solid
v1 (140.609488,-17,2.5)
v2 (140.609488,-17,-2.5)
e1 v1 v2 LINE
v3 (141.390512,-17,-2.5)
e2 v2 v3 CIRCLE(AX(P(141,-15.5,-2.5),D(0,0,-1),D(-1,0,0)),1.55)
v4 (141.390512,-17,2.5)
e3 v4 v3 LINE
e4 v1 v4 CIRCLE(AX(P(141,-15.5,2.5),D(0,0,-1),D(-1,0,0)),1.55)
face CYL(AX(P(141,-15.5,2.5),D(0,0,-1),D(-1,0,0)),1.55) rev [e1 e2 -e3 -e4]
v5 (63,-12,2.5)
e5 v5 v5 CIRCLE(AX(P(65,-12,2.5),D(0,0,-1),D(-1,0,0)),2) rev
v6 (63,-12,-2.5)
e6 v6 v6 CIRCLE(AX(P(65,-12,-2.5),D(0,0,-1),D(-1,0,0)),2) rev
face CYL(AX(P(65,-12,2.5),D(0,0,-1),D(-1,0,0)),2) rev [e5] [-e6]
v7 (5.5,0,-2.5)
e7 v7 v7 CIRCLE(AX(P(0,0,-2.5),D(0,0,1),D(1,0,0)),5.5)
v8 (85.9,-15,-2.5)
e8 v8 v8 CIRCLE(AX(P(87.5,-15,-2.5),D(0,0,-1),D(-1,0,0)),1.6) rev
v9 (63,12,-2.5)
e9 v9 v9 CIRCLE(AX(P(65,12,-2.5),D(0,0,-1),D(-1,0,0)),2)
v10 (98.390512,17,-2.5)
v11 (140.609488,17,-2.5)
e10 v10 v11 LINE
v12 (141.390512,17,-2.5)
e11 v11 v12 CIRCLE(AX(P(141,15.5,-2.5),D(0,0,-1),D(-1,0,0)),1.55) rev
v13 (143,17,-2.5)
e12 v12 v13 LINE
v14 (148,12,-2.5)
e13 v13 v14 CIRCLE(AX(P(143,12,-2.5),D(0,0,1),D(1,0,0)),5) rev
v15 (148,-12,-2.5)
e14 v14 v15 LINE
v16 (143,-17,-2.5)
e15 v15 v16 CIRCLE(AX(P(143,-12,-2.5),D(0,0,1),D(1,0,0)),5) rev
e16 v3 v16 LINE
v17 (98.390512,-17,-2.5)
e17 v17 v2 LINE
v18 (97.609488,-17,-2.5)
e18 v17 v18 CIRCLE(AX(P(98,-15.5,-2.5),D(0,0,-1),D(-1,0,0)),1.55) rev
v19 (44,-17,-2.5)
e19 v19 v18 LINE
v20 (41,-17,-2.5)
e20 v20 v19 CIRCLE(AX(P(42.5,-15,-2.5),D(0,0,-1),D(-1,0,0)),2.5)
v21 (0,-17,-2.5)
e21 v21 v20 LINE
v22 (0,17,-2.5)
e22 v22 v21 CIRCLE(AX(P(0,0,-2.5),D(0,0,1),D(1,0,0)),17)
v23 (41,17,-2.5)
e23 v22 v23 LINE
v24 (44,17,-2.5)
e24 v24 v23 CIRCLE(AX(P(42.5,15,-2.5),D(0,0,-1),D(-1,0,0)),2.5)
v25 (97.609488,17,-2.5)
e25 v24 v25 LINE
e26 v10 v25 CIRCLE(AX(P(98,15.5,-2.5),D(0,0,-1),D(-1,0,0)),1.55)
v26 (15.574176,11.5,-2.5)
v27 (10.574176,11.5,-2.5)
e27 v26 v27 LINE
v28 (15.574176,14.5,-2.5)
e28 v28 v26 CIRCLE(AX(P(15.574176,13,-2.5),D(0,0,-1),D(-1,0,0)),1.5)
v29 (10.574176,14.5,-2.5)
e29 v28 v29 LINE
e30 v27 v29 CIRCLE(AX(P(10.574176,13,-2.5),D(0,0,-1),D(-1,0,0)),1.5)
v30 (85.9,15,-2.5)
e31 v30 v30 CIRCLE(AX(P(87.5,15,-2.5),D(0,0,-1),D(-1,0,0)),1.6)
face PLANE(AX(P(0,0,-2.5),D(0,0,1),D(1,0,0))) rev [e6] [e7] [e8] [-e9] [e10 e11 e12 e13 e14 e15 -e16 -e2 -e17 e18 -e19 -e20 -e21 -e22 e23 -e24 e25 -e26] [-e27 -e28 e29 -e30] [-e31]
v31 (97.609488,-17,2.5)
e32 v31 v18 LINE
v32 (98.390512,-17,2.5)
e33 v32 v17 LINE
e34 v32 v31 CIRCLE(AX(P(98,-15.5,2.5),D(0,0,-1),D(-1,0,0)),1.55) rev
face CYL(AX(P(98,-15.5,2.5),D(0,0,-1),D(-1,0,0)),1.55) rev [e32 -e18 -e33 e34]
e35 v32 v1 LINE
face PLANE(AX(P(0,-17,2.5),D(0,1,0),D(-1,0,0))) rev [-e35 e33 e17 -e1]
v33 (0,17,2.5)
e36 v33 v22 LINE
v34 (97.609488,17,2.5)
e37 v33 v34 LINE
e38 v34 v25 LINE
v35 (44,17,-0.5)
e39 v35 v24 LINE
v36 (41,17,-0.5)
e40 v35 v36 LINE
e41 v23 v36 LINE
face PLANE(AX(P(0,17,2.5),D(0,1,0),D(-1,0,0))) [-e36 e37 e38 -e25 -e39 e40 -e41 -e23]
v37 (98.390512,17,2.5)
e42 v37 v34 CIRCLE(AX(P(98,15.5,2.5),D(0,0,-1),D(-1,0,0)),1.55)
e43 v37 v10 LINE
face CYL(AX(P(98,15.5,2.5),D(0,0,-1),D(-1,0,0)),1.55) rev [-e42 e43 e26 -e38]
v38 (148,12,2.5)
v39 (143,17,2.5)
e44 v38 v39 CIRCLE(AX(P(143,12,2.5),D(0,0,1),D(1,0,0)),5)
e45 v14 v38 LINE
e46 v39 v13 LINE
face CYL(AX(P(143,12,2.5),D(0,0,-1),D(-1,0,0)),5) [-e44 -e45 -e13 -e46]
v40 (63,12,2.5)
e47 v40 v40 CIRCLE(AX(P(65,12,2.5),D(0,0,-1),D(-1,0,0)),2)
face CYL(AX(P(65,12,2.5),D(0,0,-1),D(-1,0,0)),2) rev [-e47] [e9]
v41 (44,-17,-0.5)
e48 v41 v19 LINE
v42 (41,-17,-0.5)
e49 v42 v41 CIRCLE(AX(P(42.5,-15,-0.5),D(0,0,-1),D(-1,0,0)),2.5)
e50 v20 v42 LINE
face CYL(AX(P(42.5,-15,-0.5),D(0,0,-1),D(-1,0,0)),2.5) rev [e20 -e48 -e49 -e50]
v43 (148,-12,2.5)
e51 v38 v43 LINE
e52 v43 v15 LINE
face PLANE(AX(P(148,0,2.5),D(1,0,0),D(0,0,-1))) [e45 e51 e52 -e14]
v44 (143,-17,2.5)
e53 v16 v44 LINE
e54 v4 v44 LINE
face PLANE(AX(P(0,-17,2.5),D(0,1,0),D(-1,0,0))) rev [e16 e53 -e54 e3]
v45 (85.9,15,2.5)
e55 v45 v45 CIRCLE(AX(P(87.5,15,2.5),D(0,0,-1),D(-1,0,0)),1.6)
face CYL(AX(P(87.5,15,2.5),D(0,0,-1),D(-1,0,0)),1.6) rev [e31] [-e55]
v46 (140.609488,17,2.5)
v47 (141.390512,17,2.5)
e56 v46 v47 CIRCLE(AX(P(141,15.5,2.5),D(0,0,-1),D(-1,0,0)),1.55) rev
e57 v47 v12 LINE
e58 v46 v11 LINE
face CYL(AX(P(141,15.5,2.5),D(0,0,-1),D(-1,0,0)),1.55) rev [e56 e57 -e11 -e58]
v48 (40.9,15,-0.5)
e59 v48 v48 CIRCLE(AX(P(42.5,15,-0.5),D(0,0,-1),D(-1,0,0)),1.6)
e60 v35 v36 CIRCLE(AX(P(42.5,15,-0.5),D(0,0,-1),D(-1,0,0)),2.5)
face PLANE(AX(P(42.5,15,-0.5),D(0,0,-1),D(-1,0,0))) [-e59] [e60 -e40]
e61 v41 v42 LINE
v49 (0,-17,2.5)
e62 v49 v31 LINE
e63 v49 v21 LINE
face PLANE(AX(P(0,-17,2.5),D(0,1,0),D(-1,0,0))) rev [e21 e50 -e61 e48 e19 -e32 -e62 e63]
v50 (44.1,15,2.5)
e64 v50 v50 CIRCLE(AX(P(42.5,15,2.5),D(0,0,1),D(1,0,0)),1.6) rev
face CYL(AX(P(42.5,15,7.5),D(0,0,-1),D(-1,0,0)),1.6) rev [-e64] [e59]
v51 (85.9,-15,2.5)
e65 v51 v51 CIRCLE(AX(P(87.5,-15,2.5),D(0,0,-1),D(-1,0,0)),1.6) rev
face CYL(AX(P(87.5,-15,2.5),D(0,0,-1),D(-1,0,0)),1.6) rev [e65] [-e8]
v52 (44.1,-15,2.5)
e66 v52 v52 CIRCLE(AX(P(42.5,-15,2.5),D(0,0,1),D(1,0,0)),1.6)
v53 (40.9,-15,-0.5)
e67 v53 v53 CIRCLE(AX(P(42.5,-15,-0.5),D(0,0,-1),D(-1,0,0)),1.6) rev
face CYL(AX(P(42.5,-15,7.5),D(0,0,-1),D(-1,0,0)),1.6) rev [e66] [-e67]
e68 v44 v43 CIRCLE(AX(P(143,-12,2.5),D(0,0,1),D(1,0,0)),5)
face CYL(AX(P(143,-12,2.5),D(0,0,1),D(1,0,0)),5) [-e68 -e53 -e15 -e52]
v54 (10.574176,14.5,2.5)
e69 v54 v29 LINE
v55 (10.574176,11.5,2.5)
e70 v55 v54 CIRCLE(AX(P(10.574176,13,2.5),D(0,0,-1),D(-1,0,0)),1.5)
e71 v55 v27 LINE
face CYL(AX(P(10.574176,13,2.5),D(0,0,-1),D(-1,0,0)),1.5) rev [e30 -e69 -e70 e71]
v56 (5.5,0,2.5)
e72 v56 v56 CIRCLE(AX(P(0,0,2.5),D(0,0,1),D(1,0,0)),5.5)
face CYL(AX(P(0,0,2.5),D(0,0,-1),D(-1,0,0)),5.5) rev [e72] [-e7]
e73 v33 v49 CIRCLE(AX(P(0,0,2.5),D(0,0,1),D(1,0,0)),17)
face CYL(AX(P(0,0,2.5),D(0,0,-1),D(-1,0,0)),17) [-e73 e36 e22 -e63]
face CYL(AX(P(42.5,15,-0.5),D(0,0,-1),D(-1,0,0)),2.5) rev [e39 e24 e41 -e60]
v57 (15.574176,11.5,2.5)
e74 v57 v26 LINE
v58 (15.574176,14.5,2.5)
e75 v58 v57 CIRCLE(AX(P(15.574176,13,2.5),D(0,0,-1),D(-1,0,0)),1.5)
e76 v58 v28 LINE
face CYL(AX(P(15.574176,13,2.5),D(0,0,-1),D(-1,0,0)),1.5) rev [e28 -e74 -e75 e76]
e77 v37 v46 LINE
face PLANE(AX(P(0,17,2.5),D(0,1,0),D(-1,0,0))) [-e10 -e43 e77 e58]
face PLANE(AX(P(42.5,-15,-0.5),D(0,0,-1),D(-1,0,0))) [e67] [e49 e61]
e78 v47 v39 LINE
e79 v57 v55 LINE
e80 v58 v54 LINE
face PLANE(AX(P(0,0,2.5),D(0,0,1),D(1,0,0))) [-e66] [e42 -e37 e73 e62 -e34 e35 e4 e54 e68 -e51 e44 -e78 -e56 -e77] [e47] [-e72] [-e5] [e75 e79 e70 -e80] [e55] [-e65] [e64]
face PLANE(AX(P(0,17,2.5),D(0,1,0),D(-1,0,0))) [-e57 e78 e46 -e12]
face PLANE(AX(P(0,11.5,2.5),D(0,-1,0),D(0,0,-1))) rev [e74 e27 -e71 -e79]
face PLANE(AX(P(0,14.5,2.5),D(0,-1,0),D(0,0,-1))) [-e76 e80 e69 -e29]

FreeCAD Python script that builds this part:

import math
import FreeCAD as App
import Part
import Sketcher

V = App.Vector
Q = App.Units.Quantity


def edges_at(feature, points):
    """Names of the edges that pass closest to the given points."""
    edges = feature.Shape.Edges
    near = lambda p: min(range(len(edges)), key=lambda i: edges[i].distToShape(Part.Vertex(*p))[0])
    return sorted({f"Edge{near(p) + 1}" for p in points})

doc = App.newDocument("Part")
params = doc.addObject("Spreadsheet::Sheet", "Params")
for row, (alias, value) in enumerate([
    ("sketch1_radius", "17 mm"),
    ("sketch1_radius2", "5.5 mm"),
    ("sketch1_width", "148 mm"),
    ("pad1_length", "5 mm"),
    ("fillet_radius", "5 mm"),
    ("sketch2_diameter", "4 mm"),
    ("sketch2_diameter2", "3.2 mm"),
    ("sketch2_radius", "1.5 mm"),
    ("sketch2_width", "5 mm"),
    ("sketch2_radius2", "1.55 mm"),
    ("sketch3_diameter", "3.2 mm"),
    ("pocket2_length", "10 mm"),
    ("sketch4_diameter", "5 mm"),
    ("pocket3_length", "2 mm"),
], start=1):
    params.set(f"A{row}", alias)
    params.set(f"B{row}", "=" + value)
    params.setAlias(f"B{row}", alias)

body = doc.addObject("PartDesign::Body", "Body")

# Sketch on XY plane
sketch1 = body.newObject("Sketcher::SketchObject", "Sketch")
sketch1.AttachmentSupport = (doc.getObject("XY_Plane"), [""])
sketch1.MapMode = "FlatFace"
sketch1.addGeometry([
    Part.LineSegment(V(148, -17, 0), V(148, 17, 0)),  # 0
    Part.LineSegment(V(148, 17, 0), V(0, 17, 0)),  # 1
    Part.ArcOfCircle(Part.Circle(V(0, 0, 0), V(0, 0, 1), 17), math.radians(90), math.radians(180)),  # 2
    Part.ArcOfCircle(Part.Circle(V(0, 0, 0), V(0, 0, 1), 17), math.radians(-180), math.radians(-90)),  # 3
    Part.LineSegment(V(0, -17, 0), V(148, -17, 0)),  # 4
    Part.ArcOfCircle(Part.Circle(V(0, 0, 0), V(0, 0, 1), 5), math.radians(-90), math.radians(0)),  # 5
    Part.ArcOfCircle(Part.Circle(V(0, 0, 0), V(0, 0, 1), 5), math.radians(180), math.radians(270)),  # 6
    Part.ArcOfCircle(Part.Circle(V(0, 0, 0), V(0, 0, 1), 5), math.radians(90), math.radians(180)),  # 7
    Part.ArcOfCircle(Part.Circle(V(0, 0, 0), V(0, 0, 1), 5), math.radians(0), math.radians(90)),  # 8
], False)
sketch1.addConstraint([
    Sketcher.Constraint("Coincident", 0, 2, 1, 1),
    Sketcher.Constraint("Tangent", 1, 2, 2, 1),
    Sketcher.Constraint("Tangent", 2, 2, 3, 1),
    Sketcher.Constraint("Tangent", 3, 2, 4, 1),
    Sketcher.Constraint("Coincident", 4, 2, 0, 1),
    Sketcher.Constraint("Tangent", 5, 1, 6, 2),
    Sketcher.Constraint("Tangent", 6, 1, 7, 2),
    Sketcher.Constraint("Tangent", 7, 1, 8, 2),
    Sketcher.Constraint("Tangent", 8, 1, 5, 2),
    Sketcher.Constraint("Vertical", 0),
    Sketcher.Constraint("Horizontal", 1),
    Sketcher.Constraint("Horizontal", 4),
    Sketcher.Constraint("Coincident", 2, 3, -1, 1),
    Sketcher.Constraint("Coincident", 5, 3, -1, 1),
    Sketcher.Constraint("Equal", 2, 3),
    Sketcher.Constraint("Equal", 5, 6),
    Sketcher.Constraint("PointOnObject", 2, 2, -1),
    Sketcher.Constraint("PointOnObject", 5, 1, -2),
    Sketcher.Constraint("PointOnObject", 6, 1, -1),
    Sketcher.Constraint("PointOnObject", 7, 1, -2),
    Sketcher.Constraint("PointOnObject", 8, 1, -1),
    Sketcher.Constraint("Radius", 2, Q("17 mm")),
    Sketcher.Constraint("Radius", 5, Q("5.5 mm")),
    Sketcher.Constraint("DistanceX", 1, 2, 1, 1, Q("148 mm")),
])
sketch1.setExpression("Constraints[21]", "Params.sketch1_radius")
sketch1.setExpression("Constraints[22]", "Params.sketch1_radius2")
sketch1.setExpression("Constraints[23]", "Params.sketch1_width")
pad1 = body.newObject("PartDesign::Pad", "Pad")
pad1.Profile = sketch1
pad1.setExpression("Length", "Params.pad1_length")
pad1.Midplane = True
doc.recompute()

fillet = body.newObject("PartDesign::Fillet", "Fillet")
fillet.Base = (pad1, edges_at(pad1, [(148, 17, 0), (148, -17, 0)]))
fillet.setExpression("Radius", "Params.fillet_radius")

# Sketch on XY plane
sketch2 = body.newObject("Sketcher::SketchObject", "Sketch001")
sketch2.AttachmentSupport = (doc.getObject("XY_Plane"), [""])
sketch2.MapMode = "FlatFace"
sketch2.AttachmentOffset = App.Placement(V(0, 0, -2.5), App.Rotation())
sketch2.addGeometry([
    Part.LineSegment(V(97.6, 17, 0), V(98.4, 17, 0)),  # 0
    Part.ArcOfCircle(Part.Circle(V(98, 15.5, 0), V(0, 0, 1), 1.6), math.radians(-90), math.radians(75)),  # 1
    Part.ArcOfCircle(Part.Circle(V(98, 15.5, 0), V(0, 0, 1), 1.6), math.radians(105), math.radians(270)),  # 2
    Part.ArcOfCircle(Part.Circle(V(141, 15.5, 0), V(0, 0, 1), 1.6), math.radians(105), math.radians(435)),  # 3
    Part.LineSegment(V(140.6, 17, 0), V(141.4, 17, 0)),  # 4
    Part.Circle(V(87.5, 15, 0), V(0, 0, 1), 1.6),  # 5
    Part.Circle(V(65, 12, 0), V(0, 0, 1), 2),  # 6
    Part.LineSegment(V(141.4, -17, 0), V(140.6, -17, 0)),  # 7
    Part.ArcOfCircle(Part.Circle(V(141, -15.5, 0), V(0, 0, 1), 1.6), math.radians(-75), math.radians(255)),  # 8
    Part.ArcOfCircle(Part.Circle(V(98, -15.5, 0), V(0, 0, 1), 1.6), math.radians(-75), math.radians(255)),  # 9
    Part.LineSegment(V(98.4, -17, 0), V(97.6, -17, 0)),  # 10
    Part.LineSegment(V(10.6, 14.5, 0), V(15.6, 14.5, 0)),  # 11
    Part.ArcOfCircle(Part.Circle(V(15.6, 13, 0), V(0, 0, 1), 1.5), math.radians(-90), math.radians(90)),  # 12
    Part.LineSegment(V(15.6, 11.5, 0), V(10.6, 11.5, 0)),  # 13
    Part.ArcOfCircle(Part.Circle(V(10.6, 13, 0), V(0, 0, 1), 1.5), math.radians(90), math.radians(270)),  # 14
    Part.Circle(V(87.5, -15, 0), V(0, 0, 1), 1.6),  # 15
    Part.Circle(V(65, -12, 0), V(0, 0, 1), 2),  # 16
], False)
sketch2.addConstraint([
    Sketcher.Constraint("Coincident", 0, 2, 1, 2),
    Sketcher.Constraint("Tangent", 1, 1, 2, 2),
    Sketcher.Constraint("Coincident", 2, 1, 0, 1),
    Sketcher.Constraint("Coincident", 3, 1, 4, 1),
    Sketcher.Constraint("Coincident", 4, 2, 3, 2),
    Sketcher.Constraint("Coincident", 7, 1, 8, 1),
    Sketcher.Constraint("Coincident", 8, 2, 7, 2),
    Sketcher.Constraint("Coincident", 9, 1, 10, 1),
    Sketcher.Constraint("Coincident", 10, 2, 9, 2),
    Sketcher.Constraint("Tangent", 11, 2, 12, 2),
    Sketcher.Constraint("Tangent", 12, 1, 13, 1),
    Sketcher.Constraint("Tangent", 13, 2, 14, 2),
    Sketcher.Constraint("Tangent", 14, 1, 11, 1),
    Sketcher.Constraint("Horizontal", 0),
    Sketcher.Constraint("Horizontal", 4),
    Sketcher.Constraint("Horizontal", 7),
    Sketcher.Constraint("Horizontal", 10),
    Sketcher.Constraint("Horizontal", 11),
    Sketcher.Constraint("Horizontal", 13),
    Sketcher.Constraint("Equal", 1, 2),
    Sketcher.Constraint("Equal", 2, 3),
    Sketcher.Constraint("Equal", 3, 8),
    Sketcher.Constraint("Equal", 8, 9),
    Sketcher.Constraint("Equal", 5, 15),
    Sketcher.Constraint("Equal", 6, 16),
    Sketcher.Constraint("Symmetric", 3, 3, 8, 3, -1),
    Sketcher.Constraint("Symmetric", 1, 3, 9, 3, -1),
    Sketcher.Constraint("Symmetric", 5, 3, 15, 3, -1),
    Sketcher.Constraint("Symmetric", 6, 3, 16, 3, -1),
    Sketcher.Constraint("Horizontal", 2, 3, 3, 3),
    Sketcher.Constraint("Horizontal", 2, 1, 3, 1),
    Sketcher.Constraint("Horizontal", 8, 2, 9, 1),
    Sketcher.Constraint("Vertical", 9, 3, 1, 1),
    Sketcher.Constraint("Vertical", 4, 2, 7, 1),
    Sketcher.Constraint("Diameter", 6, Q("4 mm")),
    Sketcher.Constraint("Diameter", 5, Q("3.2 mm")),
    Sketcher.Constraint("Radius", 12, Q("1.5 mm")),
    Sketcher.Constraint("DistanceX", 11, 1, 11, 2, Q("5 mm")),
    Sketcher.Constraint("Radius", 1, Q("1.55 mm")),
    Sketcher.Constraint("DistanceX", -1, 1, 1, 3, Q("98 mm")),
    Sketcher.Constraint("DistanceX", -1, 1, 3, 3, Q("141 mm")),
    Sketcher.Constraint("DistanceY", -1, 1, 5, 3, Q("15 mm")),
    Sketcher.Constraint("DistanceX", -1, 1, 6, 3, Q("65 mm")),
    Sketcher.Constraint("DistanceY", -1, 1, 6, 3, Q("12 mm")),
    Sketcher.Constraint("DistanceY", -1, 1, 12, 3, Q("13 mm")),
    Sketcher.Constraint("DistanceY", -1, 1, 0, 2, Q("17 mm")),
    Sketcher.Constraint("DistanceY", 8, 3, 3, 3, Q("31 mm")),
    Sketcher.Constraint("DistanceX", -1, 1, 5, 3, Q("87.5 mm")),
    Sketcher.Constraint("DistanceX", -1, 1, 12, 3, Q("15.574176 mm")),
])
sketch2.setExpression("Constraints[34]", "Params.sketch2_diameter")
sketch2.setExpression("Constraints[35]", "Params.sketch2_diameter2")
sketch2.setExpression("Constraints[36]", "Params.sketch2_radius")
sketch2.setExpression("Constraints[37]", "Params.sketch2_width")
sketch2.setExpression("Constraints[38]", "Params.sketch2_radius2")
pocket1 = body.newObject("PartDesign::Pocket", "Pocket")
pocket1.Profile = sketch2
pocket1.Type = "ThroughAll"
pocket1.Reversed = True

# Sketch on XY plane
sketch3 = body.newObject("Sketcher::SketchObject", "Sketch002")
sketch3.AttachmentSupport = (doc.getObject("XY_Plane"), [""])
sketch3.MapMode = "FlatFace"
sketch3.AttachmentOffset = App.Placement(V(0, 0, -2.5), App.Rotation())
sketch3.addGeometry([
    Part.Circle(V(42.5, -15, 0), V(0, 0, 1), 1.6),
    Part.Circle(V(42.5, 15, 0), V(0, 0, 1), 1.6),
], False)
sketch3.addConstraint([
    Sketcher.Constraint("Equal", 0, 1),
    Sketcher.Constraint("Symmetric", 0, 3, 1, 3, -1),
    Sketcher.Constraint("Diameter", 0, Q("3.2 mm")),
    Sketcher.Constraint("DistanceY", 0, 3, -1, 1, Q("15 mm")),
    Sketcher.Constraint("DistanceX", -1, 1, 0, 3, Q("42.5 mm")),
])
sketch3.setExpression("Constraints[2]", "Params.sketch3_diameter")
pocket2 = body.newObject("PartDesign::Pocket", "Pocket001")
pocket2.Profile = sketch3
pocket2.setExpression("Length", "Params.pocket2_length")
pocket2.Reversed = True

# Sketch on XY plane
sketch4 = body.newObject("Sketcher::SketchObject", "Sketch003")
sketch4.AttachmentSupport = (doc.getObject("XY_Plane"), [""])
sketch4.MapMode = "FlatFace"
sketch4.AttachmentOffset = App.Placement(V(0, 0, -2.5), App.Rotation())
sketch4.addGeometry([
    Part.Circle(V(42.5, 15, 0), V(0, 0, 1), 2.5),
    Part.Circle(V(42.5, -15, 0), V(0, 0, 1), 2.5),
], False)
sketch4.addConstraint([
    Sketcher.Constraint("Equal", 0, 1),
    Sketcher.Constraint("Symmetric", 0, 3, 1, 3, -1),
    Sketcher.Constraint("Diameter", 0, Q("5 mm")),
    Sketcher.Constraint("DistanceY", -1, 1, 0, 3, Q("15 mm")),
    Sketcher.Constraint("DistanceX", -1, 1, 0, 3, Q("42.5 mm")),
])
sketch4.setExpression("Constraints[2]", "Params.sketch4_diameter")
pocket3 = body.newObject("PartDesign::Pocket", "Pocket002")
pocket3.Profile = sketch4
pocket3.setExpression("Length", "Params.pocket3_length")
pocket3.Reversed = True

doc.recompute()
